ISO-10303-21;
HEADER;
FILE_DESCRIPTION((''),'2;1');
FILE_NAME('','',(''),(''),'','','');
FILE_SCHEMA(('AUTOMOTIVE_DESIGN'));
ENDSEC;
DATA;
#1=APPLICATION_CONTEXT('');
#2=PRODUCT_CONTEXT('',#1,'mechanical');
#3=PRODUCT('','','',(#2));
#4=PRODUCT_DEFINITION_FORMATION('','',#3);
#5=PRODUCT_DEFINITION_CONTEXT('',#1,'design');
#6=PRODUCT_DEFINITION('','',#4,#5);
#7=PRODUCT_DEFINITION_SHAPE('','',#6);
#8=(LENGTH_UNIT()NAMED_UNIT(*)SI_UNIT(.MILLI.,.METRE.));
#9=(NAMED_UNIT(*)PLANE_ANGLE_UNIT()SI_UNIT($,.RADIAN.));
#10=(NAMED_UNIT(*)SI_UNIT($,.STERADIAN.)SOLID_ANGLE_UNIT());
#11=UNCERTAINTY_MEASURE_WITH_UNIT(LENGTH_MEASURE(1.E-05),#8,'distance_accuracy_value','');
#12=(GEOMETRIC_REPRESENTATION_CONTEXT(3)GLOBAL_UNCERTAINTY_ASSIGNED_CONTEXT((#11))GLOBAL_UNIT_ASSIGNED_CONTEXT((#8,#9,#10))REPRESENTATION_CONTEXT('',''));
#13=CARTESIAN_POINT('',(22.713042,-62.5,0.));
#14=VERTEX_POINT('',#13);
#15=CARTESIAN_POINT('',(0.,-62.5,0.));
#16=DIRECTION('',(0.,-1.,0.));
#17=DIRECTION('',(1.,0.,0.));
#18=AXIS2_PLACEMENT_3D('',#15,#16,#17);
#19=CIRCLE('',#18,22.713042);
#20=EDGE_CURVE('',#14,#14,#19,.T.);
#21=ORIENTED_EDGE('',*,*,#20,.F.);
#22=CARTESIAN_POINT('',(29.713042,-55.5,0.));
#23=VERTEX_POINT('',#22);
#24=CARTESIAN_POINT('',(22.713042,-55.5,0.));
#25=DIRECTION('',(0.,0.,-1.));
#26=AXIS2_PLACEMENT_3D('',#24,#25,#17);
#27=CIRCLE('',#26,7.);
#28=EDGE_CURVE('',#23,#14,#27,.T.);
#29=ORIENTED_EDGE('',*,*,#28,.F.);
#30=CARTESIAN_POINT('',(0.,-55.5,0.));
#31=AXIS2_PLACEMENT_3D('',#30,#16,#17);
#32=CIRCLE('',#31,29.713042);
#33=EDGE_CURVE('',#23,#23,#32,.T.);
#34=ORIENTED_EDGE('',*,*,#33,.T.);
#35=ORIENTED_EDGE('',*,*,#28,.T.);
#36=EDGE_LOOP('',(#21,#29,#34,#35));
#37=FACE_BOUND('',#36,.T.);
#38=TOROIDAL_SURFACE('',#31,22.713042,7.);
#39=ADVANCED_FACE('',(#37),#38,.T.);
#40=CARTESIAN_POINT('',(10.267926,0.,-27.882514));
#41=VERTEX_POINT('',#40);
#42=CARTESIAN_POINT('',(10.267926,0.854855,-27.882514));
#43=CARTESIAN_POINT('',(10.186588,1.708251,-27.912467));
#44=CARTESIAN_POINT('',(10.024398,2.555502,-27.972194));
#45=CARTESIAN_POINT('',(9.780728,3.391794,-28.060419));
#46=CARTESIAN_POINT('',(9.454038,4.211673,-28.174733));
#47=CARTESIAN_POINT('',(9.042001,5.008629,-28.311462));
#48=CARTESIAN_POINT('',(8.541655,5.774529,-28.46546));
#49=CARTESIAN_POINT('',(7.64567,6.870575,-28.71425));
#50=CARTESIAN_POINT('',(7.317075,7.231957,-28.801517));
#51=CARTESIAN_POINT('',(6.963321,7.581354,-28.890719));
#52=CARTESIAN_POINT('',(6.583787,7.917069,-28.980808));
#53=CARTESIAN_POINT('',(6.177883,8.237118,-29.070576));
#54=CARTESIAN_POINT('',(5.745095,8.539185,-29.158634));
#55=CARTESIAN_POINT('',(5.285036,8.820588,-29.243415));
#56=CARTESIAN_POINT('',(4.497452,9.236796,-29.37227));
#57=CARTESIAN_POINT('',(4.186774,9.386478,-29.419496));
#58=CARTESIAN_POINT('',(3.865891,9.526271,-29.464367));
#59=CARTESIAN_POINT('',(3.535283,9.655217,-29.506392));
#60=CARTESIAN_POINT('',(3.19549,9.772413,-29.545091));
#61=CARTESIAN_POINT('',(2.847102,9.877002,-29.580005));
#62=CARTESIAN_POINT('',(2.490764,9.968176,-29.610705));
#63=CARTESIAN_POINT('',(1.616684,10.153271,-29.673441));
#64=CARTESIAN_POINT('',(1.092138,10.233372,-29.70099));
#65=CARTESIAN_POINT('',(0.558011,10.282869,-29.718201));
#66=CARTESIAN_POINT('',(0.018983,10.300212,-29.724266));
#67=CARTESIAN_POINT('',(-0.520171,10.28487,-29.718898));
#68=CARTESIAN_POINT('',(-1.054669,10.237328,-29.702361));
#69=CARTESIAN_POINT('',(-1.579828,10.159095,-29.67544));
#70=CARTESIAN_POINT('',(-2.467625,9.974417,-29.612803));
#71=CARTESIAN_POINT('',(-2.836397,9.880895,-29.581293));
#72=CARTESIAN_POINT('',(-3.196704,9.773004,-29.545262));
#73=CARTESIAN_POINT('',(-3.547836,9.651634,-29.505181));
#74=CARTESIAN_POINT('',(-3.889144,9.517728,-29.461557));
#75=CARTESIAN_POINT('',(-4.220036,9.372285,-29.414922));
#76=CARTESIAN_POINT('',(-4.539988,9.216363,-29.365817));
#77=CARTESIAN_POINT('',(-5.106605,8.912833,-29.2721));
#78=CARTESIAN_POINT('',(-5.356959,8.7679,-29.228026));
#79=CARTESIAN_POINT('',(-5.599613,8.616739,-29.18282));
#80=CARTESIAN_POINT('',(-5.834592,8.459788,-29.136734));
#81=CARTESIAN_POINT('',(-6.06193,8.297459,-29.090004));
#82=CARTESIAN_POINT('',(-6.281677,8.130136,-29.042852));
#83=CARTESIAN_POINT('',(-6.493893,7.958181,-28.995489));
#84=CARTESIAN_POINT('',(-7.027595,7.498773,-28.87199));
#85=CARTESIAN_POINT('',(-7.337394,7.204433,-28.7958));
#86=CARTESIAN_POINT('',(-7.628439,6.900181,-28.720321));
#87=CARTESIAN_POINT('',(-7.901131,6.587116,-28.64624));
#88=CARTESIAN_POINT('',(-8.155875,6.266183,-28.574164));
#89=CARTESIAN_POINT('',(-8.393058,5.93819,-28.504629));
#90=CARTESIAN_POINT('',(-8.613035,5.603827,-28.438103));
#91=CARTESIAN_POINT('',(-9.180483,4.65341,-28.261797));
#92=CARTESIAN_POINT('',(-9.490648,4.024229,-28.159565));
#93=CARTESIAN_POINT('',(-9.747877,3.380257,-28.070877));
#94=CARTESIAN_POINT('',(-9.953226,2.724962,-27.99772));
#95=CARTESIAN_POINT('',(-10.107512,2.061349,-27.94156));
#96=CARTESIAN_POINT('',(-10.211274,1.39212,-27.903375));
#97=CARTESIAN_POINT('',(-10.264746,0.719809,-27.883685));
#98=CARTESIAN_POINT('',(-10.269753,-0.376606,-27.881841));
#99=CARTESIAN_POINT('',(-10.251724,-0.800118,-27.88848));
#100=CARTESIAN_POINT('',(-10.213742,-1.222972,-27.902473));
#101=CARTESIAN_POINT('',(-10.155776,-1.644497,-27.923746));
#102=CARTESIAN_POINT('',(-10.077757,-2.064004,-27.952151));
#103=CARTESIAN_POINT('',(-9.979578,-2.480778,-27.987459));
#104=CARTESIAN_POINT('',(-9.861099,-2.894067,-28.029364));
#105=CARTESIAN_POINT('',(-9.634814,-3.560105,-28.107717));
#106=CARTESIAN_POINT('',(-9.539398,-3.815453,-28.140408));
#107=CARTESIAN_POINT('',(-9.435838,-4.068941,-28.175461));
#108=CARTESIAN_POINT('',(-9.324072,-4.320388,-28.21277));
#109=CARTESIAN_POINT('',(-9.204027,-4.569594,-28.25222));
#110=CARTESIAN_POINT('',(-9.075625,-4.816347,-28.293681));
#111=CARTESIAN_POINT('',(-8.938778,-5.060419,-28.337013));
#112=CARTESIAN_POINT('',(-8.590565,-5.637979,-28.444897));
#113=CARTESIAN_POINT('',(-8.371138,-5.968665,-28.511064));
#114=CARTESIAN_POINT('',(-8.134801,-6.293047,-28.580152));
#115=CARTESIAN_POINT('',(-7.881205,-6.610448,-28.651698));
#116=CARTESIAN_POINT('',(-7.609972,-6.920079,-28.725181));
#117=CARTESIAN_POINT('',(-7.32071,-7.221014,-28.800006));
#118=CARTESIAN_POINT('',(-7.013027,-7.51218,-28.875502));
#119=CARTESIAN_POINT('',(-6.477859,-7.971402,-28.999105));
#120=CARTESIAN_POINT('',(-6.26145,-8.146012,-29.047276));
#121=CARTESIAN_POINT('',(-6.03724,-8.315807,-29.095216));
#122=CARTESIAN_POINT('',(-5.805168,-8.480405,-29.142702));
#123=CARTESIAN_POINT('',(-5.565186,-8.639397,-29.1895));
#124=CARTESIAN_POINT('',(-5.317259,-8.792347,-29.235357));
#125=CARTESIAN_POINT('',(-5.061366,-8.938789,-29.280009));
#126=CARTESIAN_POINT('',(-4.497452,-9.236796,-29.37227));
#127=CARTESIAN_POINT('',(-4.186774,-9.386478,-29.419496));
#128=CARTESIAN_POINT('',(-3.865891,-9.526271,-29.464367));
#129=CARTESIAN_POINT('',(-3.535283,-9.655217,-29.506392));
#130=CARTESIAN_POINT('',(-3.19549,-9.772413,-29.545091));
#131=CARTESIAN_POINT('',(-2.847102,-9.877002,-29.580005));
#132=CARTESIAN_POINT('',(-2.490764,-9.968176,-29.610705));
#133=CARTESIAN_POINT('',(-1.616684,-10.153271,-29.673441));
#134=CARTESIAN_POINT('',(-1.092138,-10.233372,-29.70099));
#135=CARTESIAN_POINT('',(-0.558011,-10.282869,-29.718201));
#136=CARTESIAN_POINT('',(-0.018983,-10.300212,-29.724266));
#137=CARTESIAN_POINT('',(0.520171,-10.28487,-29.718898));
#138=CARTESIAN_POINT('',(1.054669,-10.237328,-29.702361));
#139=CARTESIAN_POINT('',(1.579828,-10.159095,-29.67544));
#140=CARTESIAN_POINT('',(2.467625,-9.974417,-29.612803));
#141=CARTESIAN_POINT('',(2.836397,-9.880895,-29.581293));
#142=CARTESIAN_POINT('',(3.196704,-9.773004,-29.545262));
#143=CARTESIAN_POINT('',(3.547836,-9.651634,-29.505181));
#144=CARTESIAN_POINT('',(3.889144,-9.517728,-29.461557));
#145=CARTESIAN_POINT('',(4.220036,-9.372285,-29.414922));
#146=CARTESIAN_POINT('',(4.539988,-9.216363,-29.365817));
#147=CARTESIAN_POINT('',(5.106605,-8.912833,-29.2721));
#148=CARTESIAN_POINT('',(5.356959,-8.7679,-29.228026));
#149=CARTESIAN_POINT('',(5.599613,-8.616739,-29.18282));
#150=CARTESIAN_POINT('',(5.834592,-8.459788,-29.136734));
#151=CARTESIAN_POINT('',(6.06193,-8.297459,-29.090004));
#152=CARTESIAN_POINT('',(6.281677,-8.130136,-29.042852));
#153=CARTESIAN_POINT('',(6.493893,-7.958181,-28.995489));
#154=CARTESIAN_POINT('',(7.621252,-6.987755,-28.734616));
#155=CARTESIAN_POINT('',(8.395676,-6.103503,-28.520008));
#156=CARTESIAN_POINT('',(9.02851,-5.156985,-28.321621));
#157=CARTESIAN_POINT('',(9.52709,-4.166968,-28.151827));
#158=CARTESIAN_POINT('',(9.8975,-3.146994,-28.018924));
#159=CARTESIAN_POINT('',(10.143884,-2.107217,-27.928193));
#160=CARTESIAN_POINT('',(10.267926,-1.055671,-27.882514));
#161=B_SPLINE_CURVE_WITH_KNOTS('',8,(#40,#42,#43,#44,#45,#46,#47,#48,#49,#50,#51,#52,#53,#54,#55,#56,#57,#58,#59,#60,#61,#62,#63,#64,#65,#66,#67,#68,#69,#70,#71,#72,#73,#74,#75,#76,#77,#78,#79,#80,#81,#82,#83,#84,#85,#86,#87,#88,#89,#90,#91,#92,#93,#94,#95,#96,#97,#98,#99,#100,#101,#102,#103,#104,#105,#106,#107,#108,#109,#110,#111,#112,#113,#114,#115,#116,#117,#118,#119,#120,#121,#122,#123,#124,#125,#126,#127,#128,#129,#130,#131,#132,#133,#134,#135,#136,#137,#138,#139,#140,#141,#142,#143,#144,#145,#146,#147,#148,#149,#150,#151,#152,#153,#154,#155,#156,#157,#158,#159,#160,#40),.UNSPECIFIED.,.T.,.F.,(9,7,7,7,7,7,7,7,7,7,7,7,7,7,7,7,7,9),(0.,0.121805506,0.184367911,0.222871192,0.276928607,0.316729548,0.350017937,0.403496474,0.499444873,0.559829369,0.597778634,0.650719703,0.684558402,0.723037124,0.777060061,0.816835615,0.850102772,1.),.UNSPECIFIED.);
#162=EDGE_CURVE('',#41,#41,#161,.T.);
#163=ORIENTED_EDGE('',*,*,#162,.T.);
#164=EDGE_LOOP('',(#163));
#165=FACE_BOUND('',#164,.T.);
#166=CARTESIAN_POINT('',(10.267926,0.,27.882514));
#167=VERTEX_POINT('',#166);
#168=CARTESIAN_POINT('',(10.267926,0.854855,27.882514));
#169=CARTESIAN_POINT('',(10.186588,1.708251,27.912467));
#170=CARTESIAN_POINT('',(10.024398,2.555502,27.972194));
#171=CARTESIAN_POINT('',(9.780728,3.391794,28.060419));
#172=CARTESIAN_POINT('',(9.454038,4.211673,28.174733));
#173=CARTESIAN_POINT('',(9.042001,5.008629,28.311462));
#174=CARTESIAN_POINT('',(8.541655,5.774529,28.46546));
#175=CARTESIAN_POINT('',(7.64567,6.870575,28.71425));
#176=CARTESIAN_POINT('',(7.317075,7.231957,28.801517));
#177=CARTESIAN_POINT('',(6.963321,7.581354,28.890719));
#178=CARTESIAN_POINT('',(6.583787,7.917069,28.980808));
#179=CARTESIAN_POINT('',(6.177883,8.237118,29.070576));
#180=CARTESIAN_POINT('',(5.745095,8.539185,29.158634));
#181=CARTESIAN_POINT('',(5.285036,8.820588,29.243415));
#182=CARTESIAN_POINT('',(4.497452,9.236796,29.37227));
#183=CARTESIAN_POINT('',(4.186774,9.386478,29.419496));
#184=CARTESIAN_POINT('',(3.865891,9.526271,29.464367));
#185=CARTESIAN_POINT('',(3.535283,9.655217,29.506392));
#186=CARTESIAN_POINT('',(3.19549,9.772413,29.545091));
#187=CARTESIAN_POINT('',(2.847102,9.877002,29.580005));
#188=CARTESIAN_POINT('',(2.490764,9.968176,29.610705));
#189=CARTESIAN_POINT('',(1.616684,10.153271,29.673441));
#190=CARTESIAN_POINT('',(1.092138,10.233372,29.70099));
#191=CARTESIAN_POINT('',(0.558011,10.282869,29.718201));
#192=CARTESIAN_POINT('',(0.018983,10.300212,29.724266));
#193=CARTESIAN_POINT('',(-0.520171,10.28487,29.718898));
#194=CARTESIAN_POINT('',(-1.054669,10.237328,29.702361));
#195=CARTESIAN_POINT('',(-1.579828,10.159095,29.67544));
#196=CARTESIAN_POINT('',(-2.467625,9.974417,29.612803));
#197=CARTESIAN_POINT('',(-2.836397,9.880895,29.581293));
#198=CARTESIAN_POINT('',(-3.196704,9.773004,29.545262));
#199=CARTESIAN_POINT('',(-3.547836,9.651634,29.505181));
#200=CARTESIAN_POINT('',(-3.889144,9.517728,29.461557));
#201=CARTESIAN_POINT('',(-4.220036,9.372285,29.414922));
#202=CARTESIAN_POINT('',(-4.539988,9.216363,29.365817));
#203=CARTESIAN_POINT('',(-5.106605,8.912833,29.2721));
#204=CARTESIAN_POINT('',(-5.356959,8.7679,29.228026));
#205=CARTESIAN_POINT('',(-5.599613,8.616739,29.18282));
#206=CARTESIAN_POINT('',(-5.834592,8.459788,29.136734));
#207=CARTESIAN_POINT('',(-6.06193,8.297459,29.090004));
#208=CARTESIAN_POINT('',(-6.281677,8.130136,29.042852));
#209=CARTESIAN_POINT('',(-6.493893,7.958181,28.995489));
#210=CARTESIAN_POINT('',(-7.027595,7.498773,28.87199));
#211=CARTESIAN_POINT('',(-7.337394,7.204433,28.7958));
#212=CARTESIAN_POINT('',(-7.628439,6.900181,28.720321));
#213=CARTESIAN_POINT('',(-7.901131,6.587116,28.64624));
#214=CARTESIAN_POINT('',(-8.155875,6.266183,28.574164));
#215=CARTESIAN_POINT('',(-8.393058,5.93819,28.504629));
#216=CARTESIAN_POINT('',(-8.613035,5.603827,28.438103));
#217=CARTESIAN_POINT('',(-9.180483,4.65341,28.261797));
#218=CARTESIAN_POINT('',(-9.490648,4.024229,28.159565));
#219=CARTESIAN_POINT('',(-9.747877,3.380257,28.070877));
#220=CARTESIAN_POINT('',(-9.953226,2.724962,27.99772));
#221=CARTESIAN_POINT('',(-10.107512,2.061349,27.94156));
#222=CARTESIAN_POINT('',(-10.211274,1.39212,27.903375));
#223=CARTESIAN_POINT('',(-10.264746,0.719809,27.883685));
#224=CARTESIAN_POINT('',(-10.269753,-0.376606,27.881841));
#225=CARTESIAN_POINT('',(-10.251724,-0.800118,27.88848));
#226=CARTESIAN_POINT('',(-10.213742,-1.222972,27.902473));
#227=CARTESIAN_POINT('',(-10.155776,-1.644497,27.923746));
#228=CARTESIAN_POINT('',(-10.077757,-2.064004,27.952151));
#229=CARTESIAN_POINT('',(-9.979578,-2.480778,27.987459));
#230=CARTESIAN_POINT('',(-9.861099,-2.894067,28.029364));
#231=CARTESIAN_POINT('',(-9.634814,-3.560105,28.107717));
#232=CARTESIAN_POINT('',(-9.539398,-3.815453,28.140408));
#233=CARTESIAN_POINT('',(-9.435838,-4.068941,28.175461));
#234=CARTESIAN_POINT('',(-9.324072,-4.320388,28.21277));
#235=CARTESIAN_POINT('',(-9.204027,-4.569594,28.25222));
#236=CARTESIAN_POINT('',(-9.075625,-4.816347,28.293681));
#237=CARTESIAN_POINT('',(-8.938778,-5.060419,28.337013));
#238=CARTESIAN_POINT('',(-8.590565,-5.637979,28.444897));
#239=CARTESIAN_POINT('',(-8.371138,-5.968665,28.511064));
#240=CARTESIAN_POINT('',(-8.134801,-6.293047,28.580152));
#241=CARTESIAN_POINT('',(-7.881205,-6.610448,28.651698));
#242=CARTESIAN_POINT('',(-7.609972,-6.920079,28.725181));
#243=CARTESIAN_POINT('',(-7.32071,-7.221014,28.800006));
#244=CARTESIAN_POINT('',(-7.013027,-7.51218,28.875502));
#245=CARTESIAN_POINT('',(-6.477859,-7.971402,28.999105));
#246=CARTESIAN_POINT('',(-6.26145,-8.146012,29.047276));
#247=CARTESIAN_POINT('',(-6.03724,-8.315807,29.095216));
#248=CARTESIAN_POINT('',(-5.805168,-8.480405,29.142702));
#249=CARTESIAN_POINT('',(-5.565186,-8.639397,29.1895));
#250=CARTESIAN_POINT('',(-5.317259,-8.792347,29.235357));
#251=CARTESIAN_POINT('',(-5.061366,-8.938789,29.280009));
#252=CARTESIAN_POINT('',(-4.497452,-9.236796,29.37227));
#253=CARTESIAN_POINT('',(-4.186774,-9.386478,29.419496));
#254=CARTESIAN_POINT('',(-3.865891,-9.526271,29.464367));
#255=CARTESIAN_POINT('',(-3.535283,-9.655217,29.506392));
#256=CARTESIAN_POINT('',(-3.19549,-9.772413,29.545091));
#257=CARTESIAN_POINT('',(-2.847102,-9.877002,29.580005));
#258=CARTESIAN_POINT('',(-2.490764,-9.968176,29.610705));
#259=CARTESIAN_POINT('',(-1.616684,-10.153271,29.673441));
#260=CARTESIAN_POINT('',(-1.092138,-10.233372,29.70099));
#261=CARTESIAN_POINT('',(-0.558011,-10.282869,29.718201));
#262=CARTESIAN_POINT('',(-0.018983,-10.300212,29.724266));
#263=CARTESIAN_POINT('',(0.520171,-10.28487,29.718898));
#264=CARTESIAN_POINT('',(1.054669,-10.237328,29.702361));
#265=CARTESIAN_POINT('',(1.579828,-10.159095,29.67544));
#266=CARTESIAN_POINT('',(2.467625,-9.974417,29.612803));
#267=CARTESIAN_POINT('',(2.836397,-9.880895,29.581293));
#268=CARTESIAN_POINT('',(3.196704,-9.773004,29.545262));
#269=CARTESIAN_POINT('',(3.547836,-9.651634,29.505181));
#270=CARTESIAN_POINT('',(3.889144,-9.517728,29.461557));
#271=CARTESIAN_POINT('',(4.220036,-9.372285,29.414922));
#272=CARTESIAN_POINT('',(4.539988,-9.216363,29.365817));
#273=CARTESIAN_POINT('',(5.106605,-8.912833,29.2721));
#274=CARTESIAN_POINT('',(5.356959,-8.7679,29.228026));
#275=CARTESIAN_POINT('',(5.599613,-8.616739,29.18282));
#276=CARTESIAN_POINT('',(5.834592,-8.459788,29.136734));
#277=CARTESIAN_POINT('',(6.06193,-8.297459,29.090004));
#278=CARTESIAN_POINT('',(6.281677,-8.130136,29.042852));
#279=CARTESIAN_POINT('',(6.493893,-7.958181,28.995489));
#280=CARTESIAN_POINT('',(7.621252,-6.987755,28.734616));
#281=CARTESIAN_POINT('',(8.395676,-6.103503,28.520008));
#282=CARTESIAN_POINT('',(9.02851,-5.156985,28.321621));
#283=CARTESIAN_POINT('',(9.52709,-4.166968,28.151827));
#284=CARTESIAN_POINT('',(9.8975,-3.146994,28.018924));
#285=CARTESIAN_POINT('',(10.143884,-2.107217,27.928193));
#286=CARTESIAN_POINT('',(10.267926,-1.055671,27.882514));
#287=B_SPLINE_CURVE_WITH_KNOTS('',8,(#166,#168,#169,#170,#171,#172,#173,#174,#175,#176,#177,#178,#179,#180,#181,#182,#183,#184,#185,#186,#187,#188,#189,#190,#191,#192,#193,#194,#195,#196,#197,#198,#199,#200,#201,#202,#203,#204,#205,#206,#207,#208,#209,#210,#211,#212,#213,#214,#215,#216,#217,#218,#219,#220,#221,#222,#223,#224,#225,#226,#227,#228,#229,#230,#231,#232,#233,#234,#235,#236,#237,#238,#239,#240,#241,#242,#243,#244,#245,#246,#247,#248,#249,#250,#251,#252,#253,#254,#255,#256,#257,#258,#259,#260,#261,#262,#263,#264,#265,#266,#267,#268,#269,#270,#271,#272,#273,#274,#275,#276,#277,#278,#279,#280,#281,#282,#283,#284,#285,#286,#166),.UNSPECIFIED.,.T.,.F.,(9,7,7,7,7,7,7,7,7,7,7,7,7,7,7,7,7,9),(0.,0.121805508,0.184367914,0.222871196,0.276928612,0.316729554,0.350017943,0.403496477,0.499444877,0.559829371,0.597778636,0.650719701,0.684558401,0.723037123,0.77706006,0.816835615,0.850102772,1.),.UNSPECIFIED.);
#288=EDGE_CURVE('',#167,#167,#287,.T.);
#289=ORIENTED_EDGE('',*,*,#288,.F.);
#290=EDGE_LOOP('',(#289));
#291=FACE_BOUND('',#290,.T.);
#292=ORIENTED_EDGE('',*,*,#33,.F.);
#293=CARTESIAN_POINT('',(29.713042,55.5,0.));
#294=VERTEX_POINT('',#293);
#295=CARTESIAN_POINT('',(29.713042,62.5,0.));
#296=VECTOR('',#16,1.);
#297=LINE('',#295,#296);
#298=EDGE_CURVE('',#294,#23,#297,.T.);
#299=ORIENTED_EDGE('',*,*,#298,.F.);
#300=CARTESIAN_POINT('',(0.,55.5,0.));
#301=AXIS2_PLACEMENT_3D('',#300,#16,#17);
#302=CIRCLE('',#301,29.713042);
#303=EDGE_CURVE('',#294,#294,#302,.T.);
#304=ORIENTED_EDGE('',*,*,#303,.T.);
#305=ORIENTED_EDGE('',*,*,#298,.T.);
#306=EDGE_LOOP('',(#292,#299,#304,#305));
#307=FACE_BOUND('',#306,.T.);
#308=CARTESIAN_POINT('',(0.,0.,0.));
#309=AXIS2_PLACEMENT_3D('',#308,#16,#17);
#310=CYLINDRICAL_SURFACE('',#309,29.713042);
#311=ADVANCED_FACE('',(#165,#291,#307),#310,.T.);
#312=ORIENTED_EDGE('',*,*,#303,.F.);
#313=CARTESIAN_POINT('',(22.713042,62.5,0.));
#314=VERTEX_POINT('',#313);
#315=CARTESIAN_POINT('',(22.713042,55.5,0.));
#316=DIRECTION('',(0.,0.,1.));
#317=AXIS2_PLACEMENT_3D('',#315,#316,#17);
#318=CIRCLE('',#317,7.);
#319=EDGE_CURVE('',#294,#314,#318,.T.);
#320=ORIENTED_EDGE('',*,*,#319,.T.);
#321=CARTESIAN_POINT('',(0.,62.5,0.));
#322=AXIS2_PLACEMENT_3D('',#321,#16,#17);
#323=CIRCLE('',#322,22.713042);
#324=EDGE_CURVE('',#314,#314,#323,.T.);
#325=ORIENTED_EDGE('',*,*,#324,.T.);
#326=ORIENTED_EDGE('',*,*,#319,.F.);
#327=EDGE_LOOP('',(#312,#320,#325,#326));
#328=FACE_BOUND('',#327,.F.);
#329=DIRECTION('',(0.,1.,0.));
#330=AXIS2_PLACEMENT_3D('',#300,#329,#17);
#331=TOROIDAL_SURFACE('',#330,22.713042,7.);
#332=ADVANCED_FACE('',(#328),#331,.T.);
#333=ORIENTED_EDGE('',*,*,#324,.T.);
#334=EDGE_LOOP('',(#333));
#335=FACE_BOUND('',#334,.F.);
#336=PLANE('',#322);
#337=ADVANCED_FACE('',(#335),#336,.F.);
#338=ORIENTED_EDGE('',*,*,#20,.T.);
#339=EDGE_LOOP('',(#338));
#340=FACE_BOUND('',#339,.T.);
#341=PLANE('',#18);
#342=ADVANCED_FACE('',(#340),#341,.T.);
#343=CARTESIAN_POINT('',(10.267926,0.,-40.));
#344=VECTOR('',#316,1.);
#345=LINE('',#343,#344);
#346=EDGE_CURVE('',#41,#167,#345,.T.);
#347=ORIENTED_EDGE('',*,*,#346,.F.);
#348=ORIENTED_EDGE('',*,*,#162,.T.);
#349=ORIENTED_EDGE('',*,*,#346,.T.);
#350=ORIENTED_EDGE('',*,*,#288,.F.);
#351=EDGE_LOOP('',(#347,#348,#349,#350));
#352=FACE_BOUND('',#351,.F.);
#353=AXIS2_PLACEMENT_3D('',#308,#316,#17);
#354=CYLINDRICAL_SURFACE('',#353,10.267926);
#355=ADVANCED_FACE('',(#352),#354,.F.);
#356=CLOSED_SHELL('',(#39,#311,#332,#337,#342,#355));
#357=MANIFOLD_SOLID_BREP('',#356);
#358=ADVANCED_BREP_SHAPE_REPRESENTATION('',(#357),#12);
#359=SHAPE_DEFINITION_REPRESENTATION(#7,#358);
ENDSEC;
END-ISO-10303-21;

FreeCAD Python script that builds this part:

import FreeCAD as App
import Part
import Sketcher
from FreeCAD import Vector


def edges_at(feature, points):
    """Names of the edges that pass closest to the given points."""
    edges = feature.Shape.Edges
    near = lambda p: min(range(len(edges)), key=lambda i: edges[i].distToShape(Part.Vertex(*p))[0])
    return sorted({f"Edge{near(p) + 1}" for p in points})

doc = App.newDocument("Part")
body = doc.addObject("PartDesign::Body", "Body")

sketch1 = body.newObject("Sketcher::SketchObject", "Sketch")
sketch1.AttachmentSupport = (doc.getObject("XZ_Plane"), [""])
sketch1.MapMode = "FlatFace"
sketch1.addGeometry(Part.Circle(Vector(0, 0, 0), Vector(0, 0, 1), 30), False)
sketch1.addConstraint(Sketcher.Constraint("Coincident", 0, 3, -1, 1))
sketch1.addConstraint(Sketcher.Constraint("Diameter", 0, 59.426084))
pad1 = body.newObject("PartDesign::Pad", "Pad")
pad1.Profile = sketch1
pad1.Length = 125
pad1.Midplane = True

sketch2 = body.newObject("Sketcher::SketchObject", "Sketch001")
sketch2.AttachmentSupport = (doc.getObject("XY_Plane"), [""])
sketch2.MapMode = "FlatFace"
sketch2.addGeometry(Part.Circle(Vector(0, 0, 0), Vector(0, 0, 1), 10), False)
sketch2.addConstraint(Sketcher.Constraint("Coincident", 0, 3, -1, 1))
sketch2.addConstraint(Sketcher.Constraint("Diameter", 0, 20.535852))
pocket1 = body.newObject("PartDesign::Pocket", "Pocket")
pocket1.Profile = sketch2
pocket1.Length = 80
pocket1.Midplane = True
doc.recompute()

fillet = body.newObject("PartDesign::Fillet", "Fillet")
fillet.Base = (pocket1, edges_at(pocket1, [(-29.713, -62.5, 0), (-29.713, 62.5, 0)]))
fillet.Radius = 7

doc.recompute()
